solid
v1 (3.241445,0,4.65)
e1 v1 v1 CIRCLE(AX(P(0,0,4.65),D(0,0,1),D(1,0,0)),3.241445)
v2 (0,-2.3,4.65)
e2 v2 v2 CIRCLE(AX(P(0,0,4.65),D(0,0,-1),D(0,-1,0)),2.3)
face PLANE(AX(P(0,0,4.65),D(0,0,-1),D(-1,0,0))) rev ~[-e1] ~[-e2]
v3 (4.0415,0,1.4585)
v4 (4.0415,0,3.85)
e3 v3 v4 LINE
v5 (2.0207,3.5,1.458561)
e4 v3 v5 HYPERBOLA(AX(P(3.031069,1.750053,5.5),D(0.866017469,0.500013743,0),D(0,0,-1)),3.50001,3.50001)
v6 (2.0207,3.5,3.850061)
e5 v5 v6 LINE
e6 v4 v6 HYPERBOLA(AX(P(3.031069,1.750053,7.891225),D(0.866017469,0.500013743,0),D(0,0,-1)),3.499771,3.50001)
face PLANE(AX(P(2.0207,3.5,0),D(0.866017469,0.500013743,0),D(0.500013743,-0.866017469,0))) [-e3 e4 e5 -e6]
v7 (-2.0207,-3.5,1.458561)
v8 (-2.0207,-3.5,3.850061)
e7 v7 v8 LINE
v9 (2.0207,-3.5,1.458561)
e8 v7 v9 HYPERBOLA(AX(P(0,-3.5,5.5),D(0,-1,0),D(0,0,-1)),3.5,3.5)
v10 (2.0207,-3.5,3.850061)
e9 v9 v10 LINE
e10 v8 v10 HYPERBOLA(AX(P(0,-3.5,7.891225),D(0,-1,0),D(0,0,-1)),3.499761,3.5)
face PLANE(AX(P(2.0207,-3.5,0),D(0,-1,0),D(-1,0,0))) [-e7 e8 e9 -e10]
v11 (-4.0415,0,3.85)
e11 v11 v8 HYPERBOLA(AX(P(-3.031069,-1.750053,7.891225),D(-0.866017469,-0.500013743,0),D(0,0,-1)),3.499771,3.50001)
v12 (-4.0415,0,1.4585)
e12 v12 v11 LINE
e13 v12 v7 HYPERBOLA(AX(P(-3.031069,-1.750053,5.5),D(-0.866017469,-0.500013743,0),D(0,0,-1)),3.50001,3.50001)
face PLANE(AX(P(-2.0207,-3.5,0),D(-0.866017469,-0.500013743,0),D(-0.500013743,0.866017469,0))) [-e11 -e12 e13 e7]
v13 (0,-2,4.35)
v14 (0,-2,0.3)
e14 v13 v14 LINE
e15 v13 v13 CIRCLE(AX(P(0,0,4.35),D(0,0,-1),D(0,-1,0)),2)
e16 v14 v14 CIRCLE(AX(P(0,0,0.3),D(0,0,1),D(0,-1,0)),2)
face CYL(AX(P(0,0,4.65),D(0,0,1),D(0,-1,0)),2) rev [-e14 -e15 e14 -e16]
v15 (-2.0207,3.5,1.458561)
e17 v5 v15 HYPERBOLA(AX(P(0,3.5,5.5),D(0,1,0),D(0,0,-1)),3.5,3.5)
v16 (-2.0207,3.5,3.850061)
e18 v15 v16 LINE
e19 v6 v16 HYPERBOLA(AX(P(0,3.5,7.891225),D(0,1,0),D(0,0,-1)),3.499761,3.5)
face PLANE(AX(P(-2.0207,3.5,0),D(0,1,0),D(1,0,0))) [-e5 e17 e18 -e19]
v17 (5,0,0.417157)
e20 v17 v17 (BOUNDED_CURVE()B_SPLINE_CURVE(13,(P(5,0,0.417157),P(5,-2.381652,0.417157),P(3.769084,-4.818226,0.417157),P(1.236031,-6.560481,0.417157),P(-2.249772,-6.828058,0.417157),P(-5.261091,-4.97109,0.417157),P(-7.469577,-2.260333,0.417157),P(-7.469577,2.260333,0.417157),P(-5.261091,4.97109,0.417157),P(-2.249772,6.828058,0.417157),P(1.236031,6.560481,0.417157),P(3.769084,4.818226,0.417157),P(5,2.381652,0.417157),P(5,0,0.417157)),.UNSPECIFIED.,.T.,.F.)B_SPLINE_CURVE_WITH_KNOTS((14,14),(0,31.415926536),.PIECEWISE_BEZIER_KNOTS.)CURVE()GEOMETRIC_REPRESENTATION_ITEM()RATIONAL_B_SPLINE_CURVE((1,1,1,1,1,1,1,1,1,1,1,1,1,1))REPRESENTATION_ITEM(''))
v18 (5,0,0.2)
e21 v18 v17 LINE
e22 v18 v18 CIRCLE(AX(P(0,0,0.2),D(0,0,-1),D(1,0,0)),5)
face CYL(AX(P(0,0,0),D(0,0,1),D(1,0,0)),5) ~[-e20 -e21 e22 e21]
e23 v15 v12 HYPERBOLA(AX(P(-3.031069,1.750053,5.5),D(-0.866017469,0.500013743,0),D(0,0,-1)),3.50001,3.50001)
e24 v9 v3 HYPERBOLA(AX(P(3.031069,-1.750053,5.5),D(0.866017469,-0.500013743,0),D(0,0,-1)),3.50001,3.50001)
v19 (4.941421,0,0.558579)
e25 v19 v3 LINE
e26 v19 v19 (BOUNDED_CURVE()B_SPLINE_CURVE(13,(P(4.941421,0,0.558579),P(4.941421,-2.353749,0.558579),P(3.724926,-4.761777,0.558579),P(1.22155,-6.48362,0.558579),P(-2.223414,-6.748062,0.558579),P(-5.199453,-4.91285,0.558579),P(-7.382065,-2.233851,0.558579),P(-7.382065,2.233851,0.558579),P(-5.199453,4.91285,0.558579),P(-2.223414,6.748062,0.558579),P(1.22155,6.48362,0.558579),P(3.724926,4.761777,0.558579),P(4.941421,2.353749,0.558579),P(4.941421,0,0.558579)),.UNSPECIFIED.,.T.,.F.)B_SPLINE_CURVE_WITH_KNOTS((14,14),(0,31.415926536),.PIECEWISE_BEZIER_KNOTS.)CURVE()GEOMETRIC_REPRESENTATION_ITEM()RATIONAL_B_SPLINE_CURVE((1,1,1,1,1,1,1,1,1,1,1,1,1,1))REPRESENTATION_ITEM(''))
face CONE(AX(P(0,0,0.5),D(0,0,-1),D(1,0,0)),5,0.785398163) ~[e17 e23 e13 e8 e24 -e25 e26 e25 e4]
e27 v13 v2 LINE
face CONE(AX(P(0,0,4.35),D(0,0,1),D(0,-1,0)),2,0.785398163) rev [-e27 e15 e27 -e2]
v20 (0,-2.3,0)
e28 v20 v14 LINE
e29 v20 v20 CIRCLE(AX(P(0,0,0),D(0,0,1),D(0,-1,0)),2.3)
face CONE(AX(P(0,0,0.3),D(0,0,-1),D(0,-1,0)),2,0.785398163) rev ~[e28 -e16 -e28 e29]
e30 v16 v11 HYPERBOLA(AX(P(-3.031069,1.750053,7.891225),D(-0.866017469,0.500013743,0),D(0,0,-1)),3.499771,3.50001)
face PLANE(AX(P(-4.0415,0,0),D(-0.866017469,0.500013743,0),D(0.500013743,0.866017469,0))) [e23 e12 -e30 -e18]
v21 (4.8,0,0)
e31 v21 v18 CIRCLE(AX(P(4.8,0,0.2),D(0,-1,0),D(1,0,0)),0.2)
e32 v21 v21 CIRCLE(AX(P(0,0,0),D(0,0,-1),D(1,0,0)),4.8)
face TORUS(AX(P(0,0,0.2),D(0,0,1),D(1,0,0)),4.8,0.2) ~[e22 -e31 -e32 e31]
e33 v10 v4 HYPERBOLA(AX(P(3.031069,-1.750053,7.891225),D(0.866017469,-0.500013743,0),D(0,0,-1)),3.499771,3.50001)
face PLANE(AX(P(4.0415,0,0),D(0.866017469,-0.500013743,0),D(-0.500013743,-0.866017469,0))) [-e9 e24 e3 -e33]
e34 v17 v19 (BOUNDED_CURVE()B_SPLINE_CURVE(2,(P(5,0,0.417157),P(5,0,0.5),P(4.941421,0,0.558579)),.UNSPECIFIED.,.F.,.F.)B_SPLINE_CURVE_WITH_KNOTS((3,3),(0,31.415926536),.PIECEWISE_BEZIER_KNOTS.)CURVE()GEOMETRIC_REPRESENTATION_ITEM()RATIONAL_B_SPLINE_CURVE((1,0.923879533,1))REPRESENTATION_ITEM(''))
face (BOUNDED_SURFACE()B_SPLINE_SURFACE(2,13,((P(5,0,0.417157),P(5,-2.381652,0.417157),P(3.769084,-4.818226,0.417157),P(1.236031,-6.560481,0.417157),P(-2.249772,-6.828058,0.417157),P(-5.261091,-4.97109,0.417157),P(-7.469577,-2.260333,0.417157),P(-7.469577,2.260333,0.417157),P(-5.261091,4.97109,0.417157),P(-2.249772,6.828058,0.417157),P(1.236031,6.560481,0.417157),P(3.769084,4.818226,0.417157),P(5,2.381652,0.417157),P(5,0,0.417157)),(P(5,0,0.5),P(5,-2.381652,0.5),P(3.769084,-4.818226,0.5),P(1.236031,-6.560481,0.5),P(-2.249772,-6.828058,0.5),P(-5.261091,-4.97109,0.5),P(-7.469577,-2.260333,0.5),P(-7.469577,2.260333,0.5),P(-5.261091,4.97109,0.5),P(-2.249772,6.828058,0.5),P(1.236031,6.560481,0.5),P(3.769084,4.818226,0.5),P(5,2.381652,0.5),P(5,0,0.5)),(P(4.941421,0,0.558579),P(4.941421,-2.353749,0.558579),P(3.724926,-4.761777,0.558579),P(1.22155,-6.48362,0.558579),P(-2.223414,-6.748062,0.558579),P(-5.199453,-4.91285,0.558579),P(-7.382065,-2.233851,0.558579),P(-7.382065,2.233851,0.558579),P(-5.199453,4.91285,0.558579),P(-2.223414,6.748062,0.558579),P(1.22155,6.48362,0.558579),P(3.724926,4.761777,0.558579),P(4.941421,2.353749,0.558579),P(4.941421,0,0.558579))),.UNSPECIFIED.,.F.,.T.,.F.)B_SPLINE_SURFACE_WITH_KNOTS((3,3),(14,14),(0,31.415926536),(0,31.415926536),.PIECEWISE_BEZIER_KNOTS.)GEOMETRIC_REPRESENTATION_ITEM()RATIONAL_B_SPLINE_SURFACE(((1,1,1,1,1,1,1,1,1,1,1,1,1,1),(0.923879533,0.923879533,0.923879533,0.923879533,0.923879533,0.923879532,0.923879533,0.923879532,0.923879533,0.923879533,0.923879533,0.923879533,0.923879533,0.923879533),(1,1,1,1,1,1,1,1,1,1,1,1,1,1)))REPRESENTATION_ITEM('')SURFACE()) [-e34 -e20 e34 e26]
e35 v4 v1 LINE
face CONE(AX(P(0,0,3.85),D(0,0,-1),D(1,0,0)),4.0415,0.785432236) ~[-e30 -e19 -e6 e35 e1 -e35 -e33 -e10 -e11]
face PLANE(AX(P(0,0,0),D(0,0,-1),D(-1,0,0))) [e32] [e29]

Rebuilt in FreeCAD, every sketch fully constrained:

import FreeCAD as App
import Part
import Sketcher
Q = App.Units.Quantity


def edges_at(feature, points):
    """Names of the edges that pass closest to the given points."""
    edges = feature.Shape.Edges
    near = lambda p: min(range(len(edges)), key=lambda i: edges[i].distToShape(Part.Vertex(*p))[0])
    return sorted({f"Edge{near(p) + 1}" for p in points})

doc = App.newDocument("Part")
params = doc.addObject("Spreadsheet::Sheet", "Params")
for row, (alias, value) in enumerate([
    ("pad1_length", "4.65 mm"),
    ("groove_angle", "360 deg"),
    ("sketch3_width", "5 mm"),
    ("sketch3_height", "0.5 mm"),
    ("revolution_angle", "360 deg"),
    ("fillet_radius", "0.2 mm"),
    ("sketch4_diameter", "4 mm"),
    ("hole_diameter", "4 mm"),
    ("chamfer_size", "0.3 mm"),
], start=1):
    params.set(f"A{row}", alias)
    params.set(f"B{row}", "=" + value)
    params.setAlias(f"B{row}", alias)

body = doc.addObject("PartDesign::Body", "Body")

# Sketch on XY plane
sketch1 = body.newObject("Sketcher::SketchObject", "Sketch")
sketch1.AttachmentSupport = (doc.getObject("XY_Plane"), [""])
sketch1.MapMode = "FlatFace"
sketch1.addGeometry(Part.LineSegment(App.Vector(2, 3.5, 0), App.Vector(-2, 3.5, 0)), False)
sketch1.addGeometry(Part.LineSegment(App.Vector(-2, 3.5, 0), App.Vector(-4, 0, 0)), False)
sketch1.addGeometry(Part.LineSegment(App.Vector(-4, 0, 0), App.Vector(-2, -3.5, 0)), False)
sketch1.addGeometry(Part.LineSegment(App.Vector(-2, -3.5, 0), App.Vector(2, -3.5, 0)), False)
sketch1.addGeometry(Part.LineSegment(App.Vector(2, -3.5, 0), App.Vector(4, 0, 0)), False)
sketch1.addGeometry(Part.LineSegment(App.Vector(4, 0, 0), App.Vector(2, 3.5, 0)), False)
sketch1.addConstraint(Sketcher.Constraint("Coincident", 0, 2, 1, 1))
sketch1.addConstraint(Sketcher.Constraint("Coincident", 1, 2, 2, 1))
sketch1.addConstraint(Sketcher.Constraint("Coincident", 2, 2, 3, 1))
sketch1.addConstraint(Sketcher.Constraint("Coincident", 3, 2, 4, 1))
sketch1.addConstraint(Sketcher.Constraint("Coincident", 4, 2, 5, 1))
sketch1.addConstraint(Sketcher.Constraint("Coincident", 5, 2, 0, 1))
sketch1.addConstraint(Sketcher.Constraint("Horizontal", 0))
sketch1.addConstraint(Sketcher.Constraint("Horizontal", 3))
sketch1.addConstraint(Sketcher.Constraint("Symmetric", 0, 2, 3, 2, -1, 1))
sketch1.addConstraint(Sketcher.Constraint("Symmetric", 1, 2, 4, 2, -1, 1))
sketch1.addConstraint(Sketcher.Constraint("PointOnObject", 1, 2, -1))
sketch1.addConstraint(Sketcher.Constraint("Parallel", 2, 5))
sketch1.addConstraint(Sketcher.Constraint("Vertical", 0, 2, 2, 2))
sketch1.addConstraint(Sketcher.Constraint("Angle", 1, Q("-120.001 deg")))
sketch1.addConstraint(Sketcher.Constraint("DistanceY", 2, 2, 0, 2, 7.0))
sketch1.addConstraint(Sketcher.Constraint("DistanceX", 0, 2, 0, 1, 4.0414))
pad1 = body.newObject("PartDesign::Pad", "Pad")
pad1.Profile = sketch1
pad1.setExpression("Length", "Params.pad1_length")

# Sketch on XZ plane
sketch2 = body.newObject("Sketcher::SketchObject", "Sketch001")
sketch2.AttachmentSupport = (doc.getObject("XZ_Plane"), [""])
sketch2.MapMode = "FlatFace"
sketch2.addGeometry(Part.LineSegment(App.Vector(2.6, 5.3, 0), App.Vector(4, 3.9, 0)), False)
sketch2.addGeometry(Part.LineSegment(App.Vector(4, 3.9, 0), App.Vector(4.7, 3.9, 0)), False)
sketch2.addGeometry(Part.LineSegment(App.Vector(4.7, 3.9, 0), App.Vector(4.7, 5.3, 0)), False)
sketch2.addGeometry(Part.LineSegment(App.Vector(4.7, 5.3, 0), App.Vector(2.6, 5.3, 0)), False)
sketch2.addConstraint(Sketcher.Constraint("Coincident", 0, 2, 1, 1))
sketch2.addConstraint(Sketcher.Constraint("Coincident", 1, 2, 2, 1))
sketch2.addConstraint(Sketcher.Constraint("Coincident", 2, 2, 3, 1))
sketch2.addConstraint(Sketcher.Constraint("Coincident", 3, 2, 0, 1))
sketch2.addConstraint(Sketcher.Constraint("Horizontal", 1))
sketch2.addConstraint(Sketcher.Constraint("Vertical", 2))
sketch2.addConstraint(Sketcher.Constraint("Horizontal", 3))
sketch2.addConstraint(Sketcher.Constraint("DistanceY", -1, 1, 0, 2, 3.85))
sketch2.addConstraint(Sketcher.Constraint("DistanceX", 1, 1, 1, 2, 0.6547))
sketch2.addConstraint(Sketcher.Constraint("DistanceX", 3, 2, 3, 1, 2.1222))
sketch2.addConstraint(Sketcher.Constraint("DistanceY", 2, 1, 2, 2, 1.4674))
sketch2.addConstraint(Sketcher.Constraint("DistanceX", -1, 1, 3, 2, 2.574))
groove = body.newObject("PartDesign::Groove", "Groove")
groove.Profile = sketch2
groove.ReferenceAxis = (sketch2, ["V_Axis"])
groove.setExpression("Angle", "Params.groove_angle")

# Sketch on XZ plane
sketch3 = body.newObject("Sketcher::SketchObject", "Sketch002")
sketch3.AttachmentSupport = (doc.getObject("XZ_Plane"), [""])
sketch3.MapMode = "FlatFace"
sketch3.addGeometry(Part.LineSegment(App.Vector(0, 2.7, 0), App.Vector(0, 0, 0)), False)
sketch3.addGeometry(Part.LineSegment(App.Vector(0, 0, 0), App.Vector(5, 0, 0)), False)
sketch3.addGeometry(Part.LineSegment(App.Vector(5, 0, 0), App.Vector(5, 0.5, 0)), False)
sketch3.addGeometry(Part.LineSegment(App.Vector(5, 0.5, 0), App.Vector(2.8, 2.7, 0)), False)
sketch3.addGeometry(Part.LineSegment(App.Vector(2.8, 2.7, 0), App.Vector(0, 2.7, 0)), False)
sketch3.addConstraint(Sketcher.Constraint("Coincident", 0, 2, 1, 1))
sketch3.addConstraint(Sketcher.Constraint("Coincident", 1, 2, 2, 1))
sketch3.addConstraint(Sketcher.Constraint("Coincident", 2, 2, 3, 1))
sketch3.addConstraint(Sketcher.Constraint("Coincident", 3, 2, 4, 1))
sketch3.addConstraint(Sketcher.Constraint("Coincident", 4, 2, 0, 1))
sketch3.addConstraint(Sketcher.Constraint("Vertical", 0))
sketch3.addConstraint(Sketcher.Constraint("Horizontal", 1))
sketch3.addConstraint(Sketcher.Constraint("Vertical", 2))
sketch3.addConstraint(Sketcher.Constraint("Horizontal", 4))
sketch3.addConstraint(Sketcher.Constraint("Coincident", 0, 2, -1, 1))
sketch3.addConstraint(Sketcher.Constraint("DistanceX", 1, 1, 1, 2, 5.0))
sketch3.addConstraint(Sketcher.Constraint("Angle", 3, Q("135 deg")))
sketch3.addConstraint(Sketcher.Constraint("DistanceY", 2, 1, 2, 2, 0.5))
sketch3.addConstraint(Sketcher.Constraint("DistanceX", 4, 2, 4, 1, 2.764))
sketch3.setExpression("Constraints[10]", "Params.sketch3_width")
sketch3.setExpression("Constraints[12]", "Params.sketch3_height")
revolution = body.newObject("PartDesign::Revolution", "Revolution")
revolution.Profile = sketch3
revolution.ReferenceAxis = (sketch3, ["V_Axis"])
revolution.setExpression("Angle", "Params.revolution_angle")
doc.recompute()

fillet = body.newObject("PartDesign::Fillet", "Fillet")
fillet.Base = (revolution, edges_at(revolution, [(-5, 0, 0.5), (-5, 0, 0)]))
fillet.setExpression("Radius", "Params.fillet_radius")

# Sketch on XY plane
sketch4 = body.newObject("Sketcher::SketchObject", "Sketch003")
sketch4.AttachmentSupport = (doc.getObject("XY_Plane"), [""])
sketch4.MapMode = "FlatFace"
sketch4.AttachmentOffset = App.Placement(App.Vector(0, 0, 4.65), App.Rotation())
sketch4.addGeometry(Part.Circle(App.Vector(0, 0, 0), App.Vector(0, 0, 1), 2), False)
sketch4.addConstraint(Sketcher.Constraint("Coincident", 0, 3, -1, 1))
sketch4.addConstraint(Sketcher.Constraint("Diameter", 0, 4.0))
sketch4.setExpression("Constraints[1]", "Params.sketch4_diameter")
doc.recompute()
hole = body.newObject("PartDesign::Hole", "Hole")
hole.Profile = sketch4
hole.ThreadType = "None"
hole.setExpression("Diameter", "Params.hole_diameter")
hole.DepthType = "ThroughAll"
doc.recompute()

chamfer = body.newObject("PartDesign::Chamfer", "Chamfer")
chamfer.Base = (hole, edges_at(hole, [(0, 2, 4.65), (2, 0, 0)]))
chamfer.setExpression("Size", "Params.chamfer_size")

doc.recompute()
